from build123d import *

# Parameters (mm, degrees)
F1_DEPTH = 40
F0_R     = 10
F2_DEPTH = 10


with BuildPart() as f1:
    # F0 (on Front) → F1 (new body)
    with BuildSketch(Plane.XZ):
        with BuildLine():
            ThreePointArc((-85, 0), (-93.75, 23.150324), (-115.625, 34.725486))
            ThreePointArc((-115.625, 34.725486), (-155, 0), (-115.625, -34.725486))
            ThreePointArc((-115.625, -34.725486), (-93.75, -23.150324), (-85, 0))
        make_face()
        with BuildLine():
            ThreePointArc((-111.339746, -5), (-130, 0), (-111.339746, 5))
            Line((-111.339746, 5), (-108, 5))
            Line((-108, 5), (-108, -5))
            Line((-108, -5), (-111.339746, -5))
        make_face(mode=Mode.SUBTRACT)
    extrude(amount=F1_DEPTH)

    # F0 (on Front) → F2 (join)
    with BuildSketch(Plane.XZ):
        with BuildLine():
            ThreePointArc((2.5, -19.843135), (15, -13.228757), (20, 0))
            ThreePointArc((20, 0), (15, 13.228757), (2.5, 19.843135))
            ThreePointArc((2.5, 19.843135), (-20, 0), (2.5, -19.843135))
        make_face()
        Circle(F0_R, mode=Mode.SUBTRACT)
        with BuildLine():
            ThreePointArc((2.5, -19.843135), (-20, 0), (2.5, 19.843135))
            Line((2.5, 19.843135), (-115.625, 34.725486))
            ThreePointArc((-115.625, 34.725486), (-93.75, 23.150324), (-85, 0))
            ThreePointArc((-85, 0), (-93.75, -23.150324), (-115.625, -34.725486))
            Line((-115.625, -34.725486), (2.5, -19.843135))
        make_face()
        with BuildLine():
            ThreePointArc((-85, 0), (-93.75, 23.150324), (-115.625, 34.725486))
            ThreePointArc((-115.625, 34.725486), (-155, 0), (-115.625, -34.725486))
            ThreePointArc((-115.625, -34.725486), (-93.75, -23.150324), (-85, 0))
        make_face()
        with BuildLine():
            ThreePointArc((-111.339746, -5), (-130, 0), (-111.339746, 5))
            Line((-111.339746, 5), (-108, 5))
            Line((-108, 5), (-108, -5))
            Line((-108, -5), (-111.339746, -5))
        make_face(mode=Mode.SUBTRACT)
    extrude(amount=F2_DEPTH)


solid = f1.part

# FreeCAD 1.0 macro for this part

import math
import FreeCAD as App
import Part
import Sketcher
from FreeCAD import Vector

doc = App.newDocument("Part")
body = doc.addObject("PartDesign::Body", "Body")

sketch1 = body.newObject("Sketcher::SketchObject", "Sketch")
sketch1.AttachmentSupport = (doc.getObject("XZ_Plane"), [""])
sketch1.MapMode = "FlatFace"
sketch1.addGeometry(Part.ArcOfCircle(Part.Circle(Vector(-120, 0, 0), Vector(0, 0, 1), 35), math.radians(0), math.radians(82.819244)), False)
sketch1.addGeometry(Part.ArcOfCircle(Part.Circle(Vector(-120, 0, 0), Vector(0, 0, 1), 35), math.radians(82.819244), math.radians(277.180756)), False)
sketch1.addGeometry(Part.ArcOfCircle(Part.Circle(Vector(-120, 0, 0), Vector(0, 0, 1), 35), math.radians(-82.819244), math.radians(0)), False)
sketch1.addGeometry(Part.LineSegment(Vector(-108, -5, 0), Vector(-111.339746, -5, 0)), False)
sketch1.addGeometry(Part.ArcOfCircle(Part.Circle(Vector(-120, 0, 0), Vector(0, 0, 1), 10), math.radians(30), math.radians(330)), False)
sketch1.addGeometry(Part.LineSegment(Vector(-111.339746, 5, 0), Vector(-108, 5, 0)), False)
sketch1.addGeometry(Part.LineSegment(Vector(-108, 5, 0), Vector(-108, -5, 0)), False)
sketch1.addConstraint(Sketcher.Constraint("Tangent", 0, 2, 1, 1))
sketch1.addConstraint(Sketcher.Constraint("Tangent", 1, 2, 2, 1))
sketch1.addConstraint(Sketcher.Constraint("Tangent", 2, 2, 0, 1))
sketch1.addConstraint(Sketcher.Constraint("Coincident", 3, 2, 4, 2))
sketch1.addConstraint(Sketcher.Constraint("Coincident", 4, 1, 5, 1))
sketch1.addConstraint(Sketcher.Constraint("Coincident", 5, 2, 6, 1))
sketch1.addConstraint(Sketcher.Constraint("Coincident", 6, 2, 3, 1))
sketch1.addConstraint(Sketcher.Constraint("Horizontal", 3))
sketch1.addConstraint(Sketcher.Constraint("Horizontal", 5))
sketch1.addConstraint(Sketcher.Constraint("Vertical", 6))
sketch1.addConstraint(Sketcher.Constraint("Coincident", 4, 3, 0, 3))
sketch1.addConstraint(Sketcher.Constraint("Symmetric", 0, 2, 1, 2, -1))
sketch1.addConstraint(Sketcher.Constraint("PointOnObject", 2, 2, -1))
sketch1.addConstraint(Sketcher.Constraint("Vertical", 3, 2, 4, 1))
sketch1.addConstraint(Sketcher.Constraint("Radius", 0, 35.0))
sketch1.addConstraint(Sketcher.Constraint("Radius", 4, 10.0))
sketch1.addConstraint(Sketcher.Constraint("DistanceY", 6, 2, 6, 1, 10.0))
sketch1.addConstraint(Sketcher.Constraint("DistanceX", 0, 3, -1, 1, 120.0))
sketch1.addConstraint(Sketcher.Constraint("DistanceX", 5, 2, -1, 1, 108.0))
sketch1.addConstraint(Sketcher.Constraint("DistanceX", 0, 2, -1, 1, 115.625))
pad1 = body.newObject("PartDesign::Pad", "Pad")
pad1.Profile = sketch1
pad1.Length = 40

sketch2 = body.newObject("Sketcher::SketchObject", "Sketch001")
sketch2.AttachmentSupport = (doc.getObject("XZ_Plane"), [""])
sketch2.MapMode = "FlatFace"
sketch2.addGeometry(Part.ArcOfCircle(Part.Circle(Vector(0.000001, -0.000001, 0), Vector(0, 0, 1), 19.999999), math.radians(-82.819246), math.radians(0.000002)), False)
sketch2.addGeometry(Part.ArcOfCircle(Part.Circle(Vector(0.000001, 0.000001, 0), Vector(0, 0, 1), 19.999999), math.radians(-0.000002), math.radians(82.819246)), False)
sketch2.addGeometry(Part.LineSegment(Vector(2.5, 19.843135, 0), Vector(-115.625, 34.725486, 0)), False)
sketch2.addGeometry(Part.ArcOfCircle(Part.Circle(Vector(-120, 0, 0), Vector(0, 0, 1), 35), math.radians(82.819244), math.radians(277.180756)), False)
sketch2.addGeometry(Part.LineSegment(Vector(-115.625, -34.725486, 0), Vector(2.5, -19.843135, 0)), False)
sketch2.addGeometry(Part.LineSegment(Vector(-108, -5, 0), Vector(-111.339746, -5, 0)), False)
sketch2.addGeometry(Part.ArcOfCircle(Part.Circle(Vector(-120, 0, 0), Vector(0, 0, 1), 10), math.radians(30), math.radians(330)), False)
sketch2.addGeometry(Part.LineSegment(Vector(-111.339746, 5, 0), Vector(-108, 5, 0)), False)
sketch2.addGeometry(Part.LineSegment(Vector(-108, 5, 0), Vector(-108, -5, 0)), False)
sketch2.addGeometry(Part.Circle(Vector(0, 0, 0), Vector(0, 0, 1), 10), False)
sketch2.addConstraint(Sketcher.Constraint("Tangent", 0, 2, 1, 1))
sketch2.addConstraint(Sketcher.Constraint("Tangent", 1, 2, 2, 1))
sketch2.addConstraint(Sketcher.Constraint("Tangent", 2, 2, 3, 1))
sketch2.addConstraint(Sketcher.Constraint("Tangent", 3, 2, 4, 1))
sketch2.addConstraint(Sketcher.Constraint("Tangent", 4, 2, 0, 1))
sketch2.addConstraint(Sketcher.Constraint("Coincident", 5, 2, 6, 2))
sketch2.addConstraint(Sketcher.Constraint("Coincident", 6, 1, 7, 1))
sketch2.addConstraint(Sketcher.Constraint("Coincident", 7, 2, 8, 1))
sketch2.addConstraint(Sketcher.Constraint("Coincident", 8, 2, 5, 1))
sketch2.addConstraint(Sketcher.Constraint("Horizontal", 5))
sketch2.addConstraint(Sketcher.Constraint("Horizontal", 7))
sketch2.addConstraint(Sketcher.Constraint("Vertical", 8))
sketch2.addConstraint(Sketcher.Constraint("Coincident", 0, 3, -1, 1))
sketch2.addConstraint(Sketcher.Constraint("Coincident", 9, 3, -1, 1))
sketch2.addConstraint(Sketcher.Constraint("Coincident", 6, 3, 3, 3))
sketch2.addConstraint(Sketcher.Constraint("Equal", 0, 1))
sketch2.addConstraint(Sketcher.Constraint("Equal", 6, 9))
sketch2.addConstraint(Sketcher.Constraint("Symmetric", 5, 2, 6, 1, -1))
sketch2.addConstraint(Sketcher.Constraint("PointOnObject", 0, 2, -1))
sketch2.addConstraint(Sketcher.Constraint("Diameter", 9, 20.0))
sketch2.addConstraint(Sketcher.Constraint("Radius", 0, 19.999999))
sketch2.addConstraint(Sketcher.Constraint("Radius", 3, 35.0))
sketch2.addConstraint(Sketcher.Constraint("DistanceY", 8, 2, 8, 1, 10.0))
sketch2.addConstraint(Sketcher.Constraint("DistanceX", 3, 3, -1, 1, 120.0))
sketch2.addConstraint(Sketcher.Constraint("DistanceX", 7, 2, -1, 1, 108.0))
pad2 = body.newObject("PartDesign::Pad", "Pad001")
pad2.Profile = sketch2
pad2.Length = 10

doc.recompute()
